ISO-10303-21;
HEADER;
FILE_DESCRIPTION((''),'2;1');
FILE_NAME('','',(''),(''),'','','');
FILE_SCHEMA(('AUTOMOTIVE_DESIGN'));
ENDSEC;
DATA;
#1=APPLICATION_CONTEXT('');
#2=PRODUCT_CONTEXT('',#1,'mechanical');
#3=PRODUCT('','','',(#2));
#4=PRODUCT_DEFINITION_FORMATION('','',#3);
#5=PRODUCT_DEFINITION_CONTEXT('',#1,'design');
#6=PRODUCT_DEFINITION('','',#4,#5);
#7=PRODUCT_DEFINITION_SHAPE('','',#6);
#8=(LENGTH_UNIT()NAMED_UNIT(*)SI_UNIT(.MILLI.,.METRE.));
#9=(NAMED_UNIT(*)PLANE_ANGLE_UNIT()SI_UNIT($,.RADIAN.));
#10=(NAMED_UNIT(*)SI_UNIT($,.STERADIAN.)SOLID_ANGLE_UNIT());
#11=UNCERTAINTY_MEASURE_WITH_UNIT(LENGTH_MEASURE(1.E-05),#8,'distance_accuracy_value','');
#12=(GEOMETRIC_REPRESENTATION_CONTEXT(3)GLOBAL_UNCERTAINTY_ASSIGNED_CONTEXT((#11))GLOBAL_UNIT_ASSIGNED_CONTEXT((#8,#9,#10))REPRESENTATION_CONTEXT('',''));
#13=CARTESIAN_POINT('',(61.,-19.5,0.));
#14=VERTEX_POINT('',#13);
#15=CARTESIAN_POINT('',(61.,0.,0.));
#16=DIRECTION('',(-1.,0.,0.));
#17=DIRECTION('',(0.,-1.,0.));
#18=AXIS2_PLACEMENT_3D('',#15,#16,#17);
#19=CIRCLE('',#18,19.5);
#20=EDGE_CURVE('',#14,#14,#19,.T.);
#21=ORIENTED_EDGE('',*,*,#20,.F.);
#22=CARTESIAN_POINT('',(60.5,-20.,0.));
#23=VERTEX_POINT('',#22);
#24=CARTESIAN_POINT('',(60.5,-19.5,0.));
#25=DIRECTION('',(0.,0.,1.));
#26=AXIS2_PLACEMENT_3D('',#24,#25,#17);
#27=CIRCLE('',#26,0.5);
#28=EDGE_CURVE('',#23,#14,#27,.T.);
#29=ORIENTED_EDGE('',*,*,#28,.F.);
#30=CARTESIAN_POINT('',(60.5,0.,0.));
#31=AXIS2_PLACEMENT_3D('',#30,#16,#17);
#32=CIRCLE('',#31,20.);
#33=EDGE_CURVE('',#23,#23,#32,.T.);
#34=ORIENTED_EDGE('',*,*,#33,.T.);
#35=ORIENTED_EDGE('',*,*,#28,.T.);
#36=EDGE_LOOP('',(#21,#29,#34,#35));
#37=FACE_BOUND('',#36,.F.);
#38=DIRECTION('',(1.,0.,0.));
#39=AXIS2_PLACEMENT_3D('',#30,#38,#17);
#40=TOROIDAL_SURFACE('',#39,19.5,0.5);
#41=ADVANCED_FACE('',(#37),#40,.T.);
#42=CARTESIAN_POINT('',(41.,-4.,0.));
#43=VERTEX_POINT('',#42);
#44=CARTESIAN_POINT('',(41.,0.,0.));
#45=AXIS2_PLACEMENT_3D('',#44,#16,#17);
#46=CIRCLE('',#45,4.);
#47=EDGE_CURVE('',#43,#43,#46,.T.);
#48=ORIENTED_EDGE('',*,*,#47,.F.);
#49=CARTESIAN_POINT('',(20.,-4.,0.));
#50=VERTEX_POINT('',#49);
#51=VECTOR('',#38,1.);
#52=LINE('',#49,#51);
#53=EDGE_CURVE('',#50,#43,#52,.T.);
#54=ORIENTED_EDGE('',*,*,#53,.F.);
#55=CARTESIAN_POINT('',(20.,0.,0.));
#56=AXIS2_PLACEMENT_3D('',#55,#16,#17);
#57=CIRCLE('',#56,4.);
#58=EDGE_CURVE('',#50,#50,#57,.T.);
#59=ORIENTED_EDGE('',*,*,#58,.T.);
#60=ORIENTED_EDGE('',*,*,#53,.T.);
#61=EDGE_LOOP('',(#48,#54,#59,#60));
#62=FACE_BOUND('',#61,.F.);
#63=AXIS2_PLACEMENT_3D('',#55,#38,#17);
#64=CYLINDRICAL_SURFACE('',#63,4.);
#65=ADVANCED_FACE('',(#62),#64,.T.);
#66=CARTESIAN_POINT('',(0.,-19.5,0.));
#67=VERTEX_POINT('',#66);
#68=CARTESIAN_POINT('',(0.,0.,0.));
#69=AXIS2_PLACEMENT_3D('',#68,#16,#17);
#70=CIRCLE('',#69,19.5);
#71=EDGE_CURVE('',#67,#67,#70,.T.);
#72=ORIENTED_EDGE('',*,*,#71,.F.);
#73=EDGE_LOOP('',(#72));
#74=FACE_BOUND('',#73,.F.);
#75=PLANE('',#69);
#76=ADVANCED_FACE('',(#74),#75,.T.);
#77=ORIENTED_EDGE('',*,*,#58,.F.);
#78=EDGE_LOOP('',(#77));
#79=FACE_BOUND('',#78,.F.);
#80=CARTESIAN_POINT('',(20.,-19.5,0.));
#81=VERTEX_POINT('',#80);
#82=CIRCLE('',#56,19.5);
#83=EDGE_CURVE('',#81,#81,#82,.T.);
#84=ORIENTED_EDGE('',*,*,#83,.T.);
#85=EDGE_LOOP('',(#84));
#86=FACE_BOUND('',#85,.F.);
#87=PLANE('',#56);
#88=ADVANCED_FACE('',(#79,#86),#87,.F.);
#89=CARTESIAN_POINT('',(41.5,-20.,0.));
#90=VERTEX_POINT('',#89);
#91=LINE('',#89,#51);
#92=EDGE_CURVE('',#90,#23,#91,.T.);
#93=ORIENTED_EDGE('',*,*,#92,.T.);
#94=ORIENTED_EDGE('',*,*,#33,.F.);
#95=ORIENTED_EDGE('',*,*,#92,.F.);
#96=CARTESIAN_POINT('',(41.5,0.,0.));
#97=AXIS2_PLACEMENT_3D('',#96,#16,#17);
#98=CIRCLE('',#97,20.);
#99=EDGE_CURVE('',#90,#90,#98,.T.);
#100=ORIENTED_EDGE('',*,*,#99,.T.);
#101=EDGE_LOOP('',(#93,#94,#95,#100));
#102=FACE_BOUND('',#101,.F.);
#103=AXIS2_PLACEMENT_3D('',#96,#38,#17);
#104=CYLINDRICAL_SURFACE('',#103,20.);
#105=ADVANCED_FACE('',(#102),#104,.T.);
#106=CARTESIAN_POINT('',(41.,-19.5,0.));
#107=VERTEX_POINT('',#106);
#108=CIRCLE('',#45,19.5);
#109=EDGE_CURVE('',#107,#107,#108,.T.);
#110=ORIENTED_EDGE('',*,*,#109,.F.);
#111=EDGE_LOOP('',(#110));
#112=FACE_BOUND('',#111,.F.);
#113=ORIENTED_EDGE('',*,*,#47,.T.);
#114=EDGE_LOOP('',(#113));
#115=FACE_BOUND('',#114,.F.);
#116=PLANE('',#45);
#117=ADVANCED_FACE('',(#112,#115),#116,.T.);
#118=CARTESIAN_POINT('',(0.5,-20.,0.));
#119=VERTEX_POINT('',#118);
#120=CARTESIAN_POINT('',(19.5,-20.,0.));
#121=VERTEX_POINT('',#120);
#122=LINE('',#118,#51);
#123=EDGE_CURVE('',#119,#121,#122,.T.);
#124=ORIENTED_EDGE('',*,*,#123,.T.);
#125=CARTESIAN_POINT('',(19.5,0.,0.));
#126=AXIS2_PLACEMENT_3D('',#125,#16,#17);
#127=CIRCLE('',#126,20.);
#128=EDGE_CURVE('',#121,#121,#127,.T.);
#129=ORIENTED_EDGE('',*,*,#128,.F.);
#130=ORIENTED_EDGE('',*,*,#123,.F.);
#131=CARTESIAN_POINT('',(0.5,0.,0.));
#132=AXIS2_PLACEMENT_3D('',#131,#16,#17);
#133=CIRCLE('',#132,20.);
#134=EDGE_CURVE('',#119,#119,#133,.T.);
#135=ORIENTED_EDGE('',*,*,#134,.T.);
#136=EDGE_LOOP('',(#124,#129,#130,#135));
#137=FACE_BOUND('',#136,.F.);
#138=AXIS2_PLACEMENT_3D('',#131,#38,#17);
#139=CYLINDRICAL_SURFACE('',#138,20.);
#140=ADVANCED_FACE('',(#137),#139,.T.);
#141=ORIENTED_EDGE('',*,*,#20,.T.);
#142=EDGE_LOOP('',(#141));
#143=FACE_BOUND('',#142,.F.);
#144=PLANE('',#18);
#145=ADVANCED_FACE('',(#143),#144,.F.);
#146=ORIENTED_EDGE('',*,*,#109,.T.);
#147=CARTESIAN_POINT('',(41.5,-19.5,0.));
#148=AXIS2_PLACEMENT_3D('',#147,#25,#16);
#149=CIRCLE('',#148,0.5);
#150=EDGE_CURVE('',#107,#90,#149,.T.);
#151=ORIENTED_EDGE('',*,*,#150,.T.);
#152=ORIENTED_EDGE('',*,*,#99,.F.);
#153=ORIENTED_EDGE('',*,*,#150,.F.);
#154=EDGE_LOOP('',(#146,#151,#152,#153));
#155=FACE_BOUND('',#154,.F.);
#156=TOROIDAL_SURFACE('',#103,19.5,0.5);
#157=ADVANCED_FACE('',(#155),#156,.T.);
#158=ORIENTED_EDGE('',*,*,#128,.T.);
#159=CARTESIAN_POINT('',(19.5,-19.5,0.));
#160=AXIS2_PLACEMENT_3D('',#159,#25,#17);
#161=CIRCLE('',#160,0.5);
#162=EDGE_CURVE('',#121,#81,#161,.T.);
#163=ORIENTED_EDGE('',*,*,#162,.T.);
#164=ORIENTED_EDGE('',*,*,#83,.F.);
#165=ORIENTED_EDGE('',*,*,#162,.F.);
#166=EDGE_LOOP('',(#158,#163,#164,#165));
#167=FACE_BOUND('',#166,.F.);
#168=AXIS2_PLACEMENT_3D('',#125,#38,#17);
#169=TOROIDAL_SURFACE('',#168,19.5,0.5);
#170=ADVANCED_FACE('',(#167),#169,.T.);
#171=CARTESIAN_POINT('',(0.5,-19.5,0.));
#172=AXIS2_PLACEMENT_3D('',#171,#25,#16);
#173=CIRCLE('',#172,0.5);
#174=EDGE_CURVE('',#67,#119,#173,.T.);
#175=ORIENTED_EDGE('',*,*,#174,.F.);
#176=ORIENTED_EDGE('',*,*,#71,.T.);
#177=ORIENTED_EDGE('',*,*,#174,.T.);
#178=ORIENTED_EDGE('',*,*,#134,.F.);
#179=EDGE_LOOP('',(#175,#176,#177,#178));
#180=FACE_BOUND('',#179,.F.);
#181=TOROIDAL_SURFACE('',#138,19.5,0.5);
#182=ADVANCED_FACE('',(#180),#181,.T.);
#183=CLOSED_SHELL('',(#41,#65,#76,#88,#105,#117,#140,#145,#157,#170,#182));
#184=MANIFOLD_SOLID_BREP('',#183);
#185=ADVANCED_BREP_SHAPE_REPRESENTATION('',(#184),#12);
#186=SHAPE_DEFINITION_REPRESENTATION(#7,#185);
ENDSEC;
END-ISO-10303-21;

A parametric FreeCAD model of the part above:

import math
import FreeCAD as App
import Part
import Sketcher
Q = App.Units.Quantity

doc = App.newDocument("Part")
body = doc.addObject("PartDesign::Body", "Body")

# Sketch on XY plane
sketch1 = body.newObject("Sketcher::SketchObject", "Sketch")
sketch1.AttachmentSupport = (doc.getObject("XY_Plane"), [""])
sketch1.MapMode = "FlatFace"
sketch1.addGeometry(Part.LineSegment(App.Vector(0, 0, 0), App.Vector(0, -19.5, 0)), False)
sketch1.addGeometry(Part.ArcOfCircle(Part.Circle(App.Vector(0.5, -19.5, 0), App.Vector(0, 0, 1), 0.5), math.radians(180), math.radians(270)), False)
sketch1.addGeometry(Part.LineSegment(App.Vector(0.5, -20, 0), App.Vector(19.5, -20, 0)), False)
sketch1.addGeometry(Part.ArcOfCircle(Part.Circle(App.Vector(19.5, -19.5, 0), App.Vector(0, 0, 1), 0.5), math.radians(-90), math.radians(0)), False)
sketch1.addGeometry(Part.LineSegment(App.Vector(20, -19.5, 0), App.Vector(20, -4, 0)), False)
sketch1.addGeometry(Part.LineSegment(App.Vector(20, -4, 0), App.Vector(41, -4, 0)), False)
sketch1.addGeometry(Part.LineSegment(App.Vector(41, -4, 0), App.Vector(41, -19.5, 0)), False)
sketch1.addGeometry(Part.ArcOfCircle(Part.Circle(App.Vector(41.5, -19.5, 0), App.Vector(0, 0, 1), 0.5), math.radians(180), math.radians(270)), False)
sketch1.addGeometry(Part.LineSegment(App.Vector(41.5, -20, 0), App.Vector(60.5, -20, 0)), False)
sketch1.addGeometry(Part.ArcOfCircle(Part.Circle(App.Vector(60.5, -19.5, 0), App.Vector(0, 0, 1), 0.5), math.radians(-90), math.radians(0)), False)
sketch1.addGeometry(Part.LineSegment(App.Vector(61, -19.5, 0), App.Vector(61, 0, 0)), False)
sketch1.addGeometry(Part.LineSegment(App.Vector(61, 0, 0), App.Vector(0, 0, 0)), False)
sketch1.addConstraint(Sketcher.Constraint("Tangent", 0, 2, 1, 1))
sketch1.addConstraint(Sketcher.Constraint("Tangent", 1, 2, 2, 1))
sketch1.addConstraint(Sketcher.Constraint("Tangent", 2, 2, 3, 1))
sketch1.addConstraint(Sketcher.Constraint("Tangent", 3, 2, 4, 1))
sketch1.addConstraint(Sketcher.Constraint("Coincident", 4, 2, 5, 1))
sketch1.addConstraint(Sketcher.Constraint("Coincident", 5, 2, 6, 1))
sketch1.addConstraint(Sketcher.Constraint("Tangent", 6, 2, 7, 1))
sketch1.addConstraint(Sketcher.Constraint("Tangent", 7, 2, 8, 1))
sketch1.addConstraint(Sketcher.Constraint("Tangent", 8, 2, 9, 1))
sketch1.addConstraint(Sketcher.Constraint("Tangent", 9, 2, 10, 1))
sketch1.addConstraint(Sketcher.Constraint("Coincident", 10, 2, 11, 1))
sketch1.addConstraint(Sketcher.Constraint("Coincident", 11, 2, 0, 1))
sketch1.addConstraint(Sketcher.Constraint("Vertical", 0))
sketch1.addConstraint(Sketcher.Constraint("Horizontal", 2))
sketch1.addConstraint(Sketcher.Constraint("Vertical", 4))
sketch1.addConstraint(Sketcher.Constraint("Horizontal", 5))
sketch1.addConstraint(Sketcher.Constraint("Vertical", 6))
sketch1.addConstraint(Sketcher.Constraint("Horizontal", 8))
sketch1.addConstraint(Sketcher.Constraint("Vertical", 10))
sketch1.addConstraint(Sketcher.Constraint("Horizontal", 11))
sketch1.addConstraint(Sketcher.Constraint("Coincident", 11, 2, -1, 1))
sketch1.addConstraint(Sketcher.Constraint("Equal", 1, 3))
sketch1.addConstraint(Sketcher.Constraint("Equal", 3, 7))
sketch1.addConstraint(Sketcher.Constraint("Equal", 7, 9))
sketch1.addConstraint(Sketcher.Constraint("Horizontal", 3, 3, 7, 3))
sketch1.addConstraint(Sketcher.Constraint("Equal", 2, 8))
sketch1.addConstraint(Sketcher.Constraint("Radius", 1, Q("0.5 mm")))
sketch1.addConstraint(Sketcher.Constraint("DistanceX", 5, 1, 5, 2, Q("21 mm")))
sketch1.addConstraint(Sketcher.Constraint("DistanceY", 1, 2, -1, 1, Q("20 mm")))
sketch1.addConstraint(Sketcher.Constraint("DistanceX", -1, 1, 3, 2, Q("20 mm")))
sketch1.addConstraint(Sketcher.Constraint("DistanceY", 4, 2, -1, 1, Q("4 mm")))
revolution = body.newObject("PartDesign::Revolution", "Revolution")
revolution.Profile = sketch1
revolution.ReferenceAxis = (sketch1, ["H_Axis"])
revolution.Angle = 360

doc.recompute()
